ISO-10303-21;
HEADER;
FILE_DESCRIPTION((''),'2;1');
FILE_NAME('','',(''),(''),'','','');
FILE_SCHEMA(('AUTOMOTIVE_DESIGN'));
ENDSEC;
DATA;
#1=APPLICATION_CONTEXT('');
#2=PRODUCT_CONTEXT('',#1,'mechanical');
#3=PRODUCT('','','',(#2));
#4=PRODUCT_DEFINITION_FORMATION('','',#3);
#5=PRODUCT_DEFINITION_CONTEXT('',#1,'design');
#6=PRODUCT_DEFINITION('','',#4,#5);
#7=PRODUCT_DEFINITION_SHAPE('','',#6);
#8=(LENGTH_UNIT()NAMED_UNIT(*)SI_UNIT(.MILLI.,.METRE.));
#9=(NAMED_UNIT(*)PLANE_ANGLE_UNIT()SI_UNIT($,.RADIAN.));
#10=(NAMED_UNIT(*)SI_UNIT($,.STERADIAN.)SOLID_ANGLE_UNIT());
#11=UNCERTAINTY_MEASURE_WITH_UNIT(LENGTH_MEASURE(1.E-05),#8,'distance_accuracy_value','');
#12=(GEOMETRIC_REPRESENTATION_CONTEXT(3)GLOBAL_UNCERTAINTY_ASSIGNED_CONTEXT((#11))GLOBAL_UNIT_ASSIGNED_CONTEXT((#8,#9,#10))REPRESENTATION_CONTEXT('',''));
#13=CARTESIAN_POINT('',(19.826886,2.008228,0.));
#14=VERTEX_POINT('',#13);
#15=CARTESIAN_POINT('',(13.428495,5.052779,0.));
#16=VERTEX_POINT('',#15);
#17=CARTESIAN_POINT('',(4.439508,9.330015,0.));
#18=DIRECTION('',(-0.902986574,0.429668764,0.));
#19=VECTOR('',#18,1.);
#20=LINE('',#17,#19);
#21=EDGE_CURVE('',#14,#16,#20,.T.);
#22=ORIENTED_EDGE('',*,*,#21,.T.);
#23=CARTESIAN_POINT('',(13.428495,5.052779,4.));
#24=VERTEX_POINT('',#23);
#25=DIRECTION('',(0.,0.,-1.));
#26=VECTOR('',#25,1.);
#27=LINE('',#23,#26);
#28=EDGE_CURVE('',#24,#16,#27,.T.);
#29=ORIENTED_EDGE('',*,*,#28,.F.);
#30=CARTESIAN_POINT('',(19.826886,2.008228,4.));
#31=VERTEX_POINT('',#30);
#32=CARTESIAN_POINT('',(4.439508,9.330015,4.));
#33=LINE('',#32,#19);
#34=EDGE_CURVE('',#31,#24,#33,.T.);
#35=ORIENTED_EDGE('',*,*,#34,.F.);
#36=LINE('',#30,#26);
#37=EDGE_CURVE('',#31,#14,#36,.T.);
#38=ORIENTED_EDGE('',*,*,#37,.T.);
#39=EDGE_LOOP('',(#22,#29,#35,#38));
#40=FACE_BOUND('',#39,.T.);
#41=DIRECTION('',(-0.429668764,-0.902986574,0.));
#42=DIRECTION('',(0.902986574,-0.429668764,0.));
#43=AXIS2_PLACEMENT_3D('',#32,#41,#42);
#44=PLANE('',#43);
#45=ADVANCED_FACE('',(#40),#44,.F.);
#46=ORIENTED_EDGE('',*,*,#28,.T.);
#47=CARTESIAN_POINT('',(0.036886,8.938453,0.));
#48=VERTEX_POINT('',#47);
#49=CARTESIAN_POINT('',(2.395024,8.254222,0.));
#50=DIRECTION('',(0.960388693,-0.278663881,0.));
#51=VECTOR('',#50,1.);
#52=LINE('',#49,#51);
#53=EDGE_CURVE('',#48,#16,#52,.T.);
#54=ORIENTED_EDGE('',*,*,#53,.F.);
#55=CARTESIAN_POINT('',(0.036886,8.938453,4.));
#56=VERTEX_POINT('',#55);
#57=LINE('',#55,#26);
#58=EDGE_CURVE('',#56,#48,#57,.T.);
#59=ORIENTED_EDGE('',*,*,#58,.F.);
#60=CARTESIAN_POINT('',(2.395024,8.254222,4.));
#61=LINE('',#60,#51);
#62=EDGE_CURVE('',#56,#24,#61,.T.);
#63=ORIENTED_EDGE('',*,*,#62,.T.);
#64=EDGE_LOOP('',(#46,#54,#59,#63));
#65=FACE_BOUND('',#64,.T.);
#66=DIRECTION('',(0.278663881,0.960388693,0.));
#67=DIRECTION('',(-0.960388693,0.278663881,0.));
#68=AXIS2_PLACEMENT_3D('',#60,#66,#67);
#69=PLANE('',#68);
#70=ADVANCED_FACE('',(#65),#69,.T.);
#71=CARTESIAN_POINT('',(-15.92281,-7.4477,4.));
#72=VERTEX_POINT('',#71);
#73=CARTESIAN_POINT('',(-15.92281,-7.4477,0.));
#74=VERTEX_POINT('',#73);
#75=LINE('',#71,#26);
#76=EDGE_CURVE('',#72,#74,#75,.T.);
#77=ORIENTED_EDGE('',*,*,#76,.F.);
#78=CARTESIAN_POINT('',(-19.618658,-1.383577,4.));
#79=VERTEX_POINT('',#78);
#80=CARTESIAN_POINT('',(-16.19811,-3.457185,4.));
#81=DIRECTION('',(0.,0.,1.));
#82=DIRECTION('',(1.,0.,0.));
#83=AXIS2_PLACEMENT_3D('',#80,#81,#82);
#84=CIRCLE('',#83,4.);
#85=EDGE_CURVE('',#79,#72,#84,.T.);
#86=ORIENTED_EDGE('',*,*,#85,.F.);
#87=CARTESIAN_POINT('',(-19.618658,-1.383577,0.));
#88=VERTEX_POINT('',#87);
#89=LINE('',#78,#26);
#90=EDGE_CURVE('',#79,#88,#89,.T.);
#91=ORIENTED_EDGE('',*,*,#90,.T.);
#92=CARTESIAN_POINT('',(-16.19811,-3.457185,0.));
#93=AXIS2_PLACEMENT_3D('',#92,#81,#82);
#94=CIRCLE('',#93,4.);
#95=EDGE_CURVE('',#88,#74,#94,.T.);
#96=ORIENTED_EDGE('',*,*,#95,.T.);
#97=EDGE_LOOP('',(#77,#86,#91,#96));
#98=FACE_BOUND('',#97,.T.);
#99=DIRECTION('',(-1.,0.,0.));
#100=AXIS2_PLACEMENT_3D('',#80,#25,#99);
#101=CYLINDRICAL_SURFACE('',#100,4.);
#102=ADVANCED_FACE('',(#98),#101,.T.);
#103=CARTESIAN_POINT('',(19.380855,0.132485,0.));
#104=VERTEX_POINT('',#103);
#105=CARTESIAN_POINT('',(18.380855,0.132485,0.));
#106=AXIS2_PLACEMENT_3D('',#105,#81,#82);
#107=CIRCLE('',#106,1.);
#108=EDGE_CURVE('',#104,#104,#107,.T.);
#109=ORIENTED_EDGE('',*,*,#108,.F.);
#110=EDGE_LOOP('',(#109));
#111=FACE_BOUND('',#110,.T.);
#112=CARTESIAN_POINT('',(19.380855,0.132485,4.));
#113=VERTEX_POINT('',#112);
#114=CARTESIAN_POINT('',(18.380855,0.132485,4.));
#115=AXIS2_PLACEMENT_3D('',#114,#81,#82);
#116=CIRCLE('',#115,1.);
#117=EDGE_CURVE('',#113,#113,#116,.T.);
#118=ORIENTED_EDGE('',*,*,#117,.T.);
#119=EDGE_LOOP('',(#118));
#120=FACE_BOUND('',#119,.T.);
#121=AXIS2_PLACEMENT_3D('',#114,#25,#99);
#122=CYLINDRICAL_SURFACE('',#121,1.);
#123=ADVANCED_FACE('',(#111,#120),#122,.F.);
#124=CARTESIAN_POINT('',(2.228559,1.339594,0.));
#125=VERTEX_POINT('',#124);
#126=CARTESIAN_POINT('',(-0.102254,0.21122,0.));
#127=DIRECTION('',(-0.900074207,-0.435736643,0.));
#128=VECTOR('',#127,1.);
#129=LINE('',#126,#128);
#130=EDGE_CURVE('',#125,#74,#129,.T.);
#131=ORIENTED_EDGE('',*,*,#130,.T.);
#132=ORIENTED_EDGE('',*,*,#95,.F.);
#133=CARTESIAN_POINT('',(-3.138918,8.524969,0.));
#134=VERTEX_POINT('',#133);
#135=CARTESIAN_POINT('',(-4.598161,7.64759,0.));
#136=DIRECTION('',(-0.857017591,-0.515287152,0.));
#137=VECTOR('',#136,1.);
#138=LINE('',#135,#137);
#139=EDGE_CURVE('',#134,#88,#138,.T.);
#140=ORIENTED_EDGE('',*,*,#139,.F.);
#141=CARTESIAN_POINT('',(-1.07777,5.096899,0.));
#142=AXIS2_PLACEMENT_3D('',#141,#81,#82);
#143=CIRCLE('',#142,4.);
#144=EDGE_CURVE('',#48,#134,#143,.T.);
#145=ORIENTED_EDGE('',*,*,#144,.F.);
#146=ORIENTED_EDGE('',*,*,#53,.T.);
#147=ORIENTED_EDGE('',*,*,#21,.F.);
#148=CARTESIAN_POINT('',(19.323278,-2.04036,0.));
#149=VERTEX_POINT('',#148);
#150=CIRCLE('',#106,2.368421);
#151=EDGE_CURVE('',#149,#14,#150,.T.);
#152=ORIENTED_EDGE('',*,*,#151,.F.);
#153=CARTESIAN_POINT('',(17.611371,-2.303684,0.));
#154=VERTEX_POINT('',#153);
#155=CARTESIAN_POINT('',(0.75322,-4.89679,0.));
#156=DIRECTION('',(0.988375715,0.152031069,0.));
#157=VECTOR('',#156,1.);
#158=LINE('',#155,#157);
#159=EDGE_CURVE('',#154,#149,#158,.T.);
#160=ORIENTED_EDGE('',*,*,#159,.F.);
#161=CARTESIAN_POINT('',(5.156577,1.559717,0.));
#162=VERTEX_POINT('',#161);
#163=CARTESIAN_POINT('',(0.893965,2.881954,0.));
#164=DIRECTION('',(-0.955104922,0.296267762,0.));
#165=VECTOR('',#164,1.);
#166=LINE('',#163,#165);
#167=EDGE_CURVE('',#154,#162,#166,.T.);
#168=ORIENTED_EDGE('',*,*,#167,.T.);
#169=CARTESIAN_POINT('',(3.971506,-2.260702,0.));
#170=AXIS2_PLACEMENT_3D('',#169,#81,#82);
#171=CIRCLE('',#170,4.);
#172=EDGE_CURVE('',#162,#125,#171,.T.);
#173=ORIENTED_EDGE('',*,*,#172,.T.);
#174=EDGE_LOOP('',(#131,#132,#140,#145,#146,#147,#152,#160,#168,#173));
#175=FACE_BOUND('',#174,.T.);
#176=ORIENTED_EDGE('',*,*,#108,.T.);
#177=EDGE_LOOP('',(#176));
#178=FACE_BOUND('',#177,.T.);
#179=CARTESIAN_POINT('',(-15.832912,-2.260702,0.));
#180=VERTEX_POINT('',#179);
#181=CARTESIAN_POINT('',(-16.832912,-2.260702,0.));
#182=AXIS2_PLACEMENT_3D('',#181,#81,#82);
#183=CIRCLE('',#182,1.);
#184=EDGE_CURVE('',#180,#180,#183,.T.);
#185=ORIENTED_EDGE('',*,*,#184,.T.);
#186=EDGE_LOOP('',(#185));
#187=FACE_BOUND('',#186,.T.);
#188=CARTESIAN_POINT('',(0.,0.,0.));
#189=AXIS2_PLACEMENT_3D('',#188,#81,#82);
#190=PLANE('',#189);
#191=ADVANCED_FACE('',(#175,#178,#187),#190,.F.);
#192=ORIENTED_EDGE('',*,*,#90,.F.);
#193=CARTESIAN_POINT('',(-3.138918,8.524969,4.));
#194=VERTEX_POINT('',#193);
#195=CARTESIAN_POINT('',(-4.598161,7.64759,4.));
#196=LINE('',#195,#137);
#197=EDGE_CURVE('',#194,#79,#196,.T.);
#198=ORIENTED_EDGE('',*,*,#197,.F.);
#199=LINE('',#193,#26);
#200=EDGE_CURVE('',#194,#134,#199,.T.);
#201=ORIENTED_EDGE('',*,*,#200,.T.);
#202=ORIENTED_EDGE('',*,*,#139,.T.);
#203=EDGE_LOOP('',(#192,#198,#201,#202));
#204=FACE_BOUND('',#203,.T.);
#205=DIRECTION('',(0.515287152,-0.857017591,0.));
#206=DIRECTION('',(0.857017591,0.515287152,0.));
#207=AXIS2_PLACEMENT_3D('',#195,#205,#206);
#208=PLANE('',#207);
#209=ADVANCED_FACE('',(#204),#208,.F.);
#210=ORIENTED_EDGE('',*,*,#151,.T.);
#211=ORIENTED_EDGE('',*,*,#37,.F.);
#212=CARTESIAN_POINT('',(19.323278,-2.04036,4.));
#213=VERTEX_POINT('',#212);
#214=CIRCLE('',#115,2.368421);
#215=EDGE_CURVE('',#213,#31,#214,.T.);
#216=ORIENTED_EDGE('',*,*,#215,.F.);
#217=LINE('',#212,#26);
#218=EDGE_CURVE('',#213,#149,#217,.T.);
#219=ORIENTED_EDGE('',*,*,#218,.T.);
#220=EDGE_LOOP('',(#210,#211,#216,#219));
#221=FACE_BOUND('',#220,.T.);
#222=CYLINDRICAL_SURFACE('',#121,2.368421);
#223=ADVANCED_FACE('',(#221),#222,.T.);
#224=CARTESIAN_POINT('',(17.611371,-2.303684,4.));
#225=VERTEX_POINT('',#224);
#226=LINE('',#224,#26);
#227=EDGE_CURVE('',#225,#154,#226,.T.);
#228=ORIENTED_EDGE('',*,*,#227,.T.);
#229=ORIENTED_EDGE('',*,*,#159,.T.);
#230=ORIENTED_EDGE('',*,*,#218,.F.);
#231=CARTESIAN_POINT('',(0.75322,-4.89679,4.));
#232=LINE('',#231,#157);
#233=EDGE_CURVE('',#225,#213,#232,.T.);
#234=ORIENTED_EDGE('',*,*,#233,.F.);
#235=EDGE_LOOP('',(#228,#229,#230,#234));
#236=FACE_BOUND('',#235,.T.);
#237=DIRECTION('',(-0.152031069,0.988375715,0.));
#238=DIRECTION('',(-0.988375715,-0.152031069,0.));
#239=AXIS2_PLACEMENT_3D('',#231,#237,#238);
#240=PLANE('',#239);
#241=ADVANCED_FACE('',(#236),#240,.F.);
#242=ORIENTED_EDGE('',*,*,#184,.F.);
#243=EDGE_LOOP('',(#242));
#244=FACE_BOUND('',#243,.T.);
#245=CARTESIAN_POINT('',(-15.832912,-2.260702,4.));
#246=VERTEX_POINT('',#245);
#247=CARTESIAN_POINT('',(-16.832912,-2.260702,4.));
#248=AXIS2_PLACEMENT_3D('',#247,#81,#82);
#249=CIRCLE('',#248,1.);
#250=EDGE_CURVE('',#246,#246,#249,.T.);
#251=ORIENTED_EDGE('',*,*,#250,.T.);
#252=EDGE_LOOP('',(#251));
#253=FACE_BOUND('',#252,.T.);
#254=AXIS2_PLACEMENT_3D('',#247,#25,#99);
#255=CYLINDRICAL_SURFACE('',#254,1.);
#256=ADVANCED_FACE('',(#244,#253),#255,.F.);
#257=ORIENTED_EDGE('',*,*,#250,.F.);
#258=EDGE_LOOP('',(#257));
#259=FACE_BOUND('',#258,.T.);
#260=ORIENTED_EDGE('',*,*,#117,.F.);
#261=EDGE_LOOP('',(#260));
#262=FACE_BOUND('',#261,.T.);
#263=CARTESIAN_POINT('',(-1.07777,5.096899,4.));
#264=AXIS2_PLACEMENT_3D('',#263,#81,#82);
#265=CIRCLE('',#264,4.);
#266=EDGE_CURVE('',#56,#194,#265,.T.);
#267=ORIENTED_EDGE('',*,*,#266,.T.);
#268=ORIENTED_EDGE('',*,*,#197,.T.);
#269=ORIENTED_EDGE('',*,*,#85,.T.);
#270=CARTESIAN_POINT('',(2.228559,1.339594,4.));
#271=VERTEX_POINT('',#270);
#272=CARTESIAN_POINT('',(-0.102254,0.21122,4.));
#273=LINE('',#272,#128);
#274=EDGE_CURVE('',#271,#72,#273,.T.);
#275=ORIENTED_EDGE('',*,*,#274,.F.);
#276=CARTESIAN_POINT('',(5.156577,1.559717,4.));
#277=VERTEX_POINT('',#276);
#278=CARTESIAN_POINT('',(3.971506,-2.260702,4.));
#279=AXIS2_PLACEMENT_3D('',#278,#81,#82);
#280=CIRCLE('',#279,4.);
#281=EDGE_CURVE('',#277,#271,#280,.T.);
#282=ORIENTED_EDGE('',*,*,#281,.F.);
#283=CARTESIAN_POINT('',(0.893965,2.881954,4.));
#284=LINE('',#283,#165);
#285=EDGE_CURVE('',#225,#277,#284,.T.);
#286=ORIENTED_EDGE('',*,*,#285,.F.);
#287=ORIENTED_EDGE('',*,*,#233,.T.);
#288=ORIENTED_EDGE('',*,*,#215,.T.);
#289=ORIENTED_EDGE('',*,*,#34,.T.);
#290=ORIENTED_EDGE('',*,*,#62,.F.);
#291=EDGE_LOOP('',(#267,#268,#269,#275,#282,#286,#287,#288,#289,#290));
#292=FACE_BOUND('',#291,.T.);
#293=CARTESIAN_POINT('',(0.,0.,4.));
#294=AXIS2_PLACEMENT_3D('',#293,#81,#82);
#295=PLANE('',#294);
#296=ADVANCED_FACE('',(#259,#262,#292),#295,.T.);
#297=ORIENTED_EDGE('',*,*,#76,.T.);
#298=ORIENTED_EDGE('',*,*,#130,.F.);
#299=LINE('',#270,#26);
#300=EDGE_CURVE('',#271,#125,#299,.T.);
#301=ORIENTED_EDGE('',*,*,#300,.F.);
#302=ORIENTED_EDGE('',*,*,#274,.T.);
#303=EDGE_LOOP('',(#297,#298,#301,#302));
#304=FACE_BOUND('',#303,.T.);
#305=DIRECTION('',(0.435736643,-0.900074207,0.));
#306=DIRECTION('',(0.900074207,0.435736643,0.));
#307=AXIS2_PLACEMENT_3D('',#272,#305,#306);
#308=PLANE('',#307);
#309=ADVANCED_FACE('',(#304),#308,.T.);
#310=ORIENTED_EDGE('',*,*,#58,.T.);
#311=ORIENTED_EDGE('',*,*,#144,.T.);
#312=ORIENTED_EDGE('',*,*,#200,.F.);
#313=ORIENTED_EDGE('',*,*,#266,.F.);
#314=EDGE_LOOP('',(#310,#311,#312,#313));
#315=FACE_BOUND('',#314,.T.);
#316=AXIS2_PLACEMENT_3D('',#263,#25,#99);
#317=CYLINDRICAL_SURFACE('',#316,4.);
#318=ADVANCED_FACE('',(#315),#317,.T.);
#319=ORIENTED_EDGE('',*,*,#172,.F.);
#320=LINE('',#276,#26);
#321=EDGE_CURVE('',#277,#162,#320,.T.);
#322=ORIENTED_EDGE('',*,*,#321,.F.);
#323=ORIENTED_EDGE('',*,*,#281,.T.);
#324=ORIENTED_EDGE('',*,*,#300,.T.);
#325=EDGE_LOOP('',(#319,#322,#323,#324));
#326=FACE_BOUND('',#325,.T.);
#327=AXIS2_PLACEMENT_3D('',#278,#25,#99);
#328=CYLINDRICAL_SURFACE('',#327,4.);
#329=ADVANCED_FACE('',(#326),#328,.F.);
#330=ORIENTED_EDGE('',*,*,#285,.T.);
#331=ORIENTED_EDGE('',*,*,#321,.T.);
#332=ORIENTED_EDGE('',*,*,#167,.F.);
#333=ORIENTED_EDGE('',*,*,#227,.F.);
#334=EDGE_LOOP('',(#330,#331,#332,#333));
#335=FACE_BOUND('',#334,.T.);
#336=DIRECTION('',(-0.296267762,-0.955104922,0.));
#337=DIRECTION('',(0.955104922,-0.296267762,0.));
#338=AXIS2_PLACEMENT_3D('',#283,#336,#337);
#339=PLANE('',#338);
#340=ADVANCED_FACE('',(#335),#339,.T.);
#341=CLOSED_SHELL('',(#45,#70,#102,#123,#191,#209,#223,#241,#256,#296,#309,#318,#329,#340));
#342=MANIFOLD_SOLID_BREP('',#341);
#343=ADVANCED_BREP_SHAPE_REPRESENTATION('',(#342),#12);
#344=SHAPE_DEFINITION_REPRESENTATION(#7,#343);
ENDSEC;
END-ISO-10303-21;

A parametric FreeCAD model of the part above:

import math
import FreeCAD as App
import Part
import Sketcher
from FreeCAD import Vector
Q = App.Units.Quantity

doc = App.newDocument("Part")
body = doc.addObject("PartDesign::Body", "Body")

# Sketch on XY plane
sketch1 = body.newObject("Sketcher::SketchObject", "Sketch")
sketch1.AttachmentSupport = (doc.getObject("XY_Plane"), [""])
sketch1.MapMode = "FlatFace"
sketch1.addGeometry([
    Part.ArcOfCircle(Part.Circle(Vector(3.971506, -2.260702, 0), Vector(0, 0, 1), 4), math.radians(72.766426), math.radians(115.832177)),  # 0
    Part.LineSegment(Vector(5.156577, 1.559717, 0), Vector(17.611371, -2.303684, 0)),  # 1
    Part.LineSegment(Vector(17.611371, -2.303684, 0), Vector(19.323278, -2.04036, 0)),  # 2
    Part.ArcOfCircle(Part.Circle(Vector(18.380855, 0.132485, 0), Vector(0, 0, 1), 2.368421), math.radians(-66.552284), math.radians(52.370966)),  # 3
    Part.LineSegment(Vector(19.826886, 2.008228, 0), Vector(13.428495, 5.052779, 0)),  # 4
    Part.LineSegment(Vector(13.428495, 5.052779, 0), Vector(0.036886, 8.938453, 0)),  # 5
    Part.ArcOfCircle(Part.Circle(Vector(-1.07777, 5.096899, 0), Vector(0, 0, 1), 4), math.radians(73.819523), math.radians(121.016651)),  # 6
    Part.LineSegment(Vector(-3.138918, 8.524969, 0), Vector(-19.618658, -1.383577, 0)),  # 7
    Part.ArcOfCircle(Part.Circle(Vector(-16.19811, -3.457185, 0), Vector(0, 0, 1), 4), math.radians(148.774886), math.radians(273.946502)),  # 8
    Part.LineSegment(Vector(-15.92281, -7.4477, 0), Vector(2.228559, 1.339594, 0)),  # 9
    Part.Circle(Vector(-16.832912, -2.260702, 0), Vector(0, 0, 1), 1),  # 10
    Part.Circle(Vector(18.380855, 0.132485, 0), Vector(0, 0, 1), 1),  # 11
], False)
sketch1.addConstraint([
    Sketcher.Constraint("Coincident", 0, 1, 1, 1),
    Sketcher.Constraint("Coincident", 1, 2, 2, 1),
    Sketcher.Constraint("Coincident", 2, 2, 3, 1),
    Sketcher.Constraint("Coincident", 3, 2, 4, 1),
    Sketcher.Constraint("Coincident", 4, 2, 5, 1),
    Sketcher.Constraint("Coincident", 5, 2, 6, 1),
    Sketcher.Constraint("Coincident", 6, 2, 7, 1),
    Sketcher.Constraint("Coincident", 7, 2, 8, 1),
    Sketcher.Constraint("Coincident", 8, 2, 9, 1),
    Sketcher.Constraint("Coincident", 9, 2, 0, 2),
    Sketcher.Constraint("Coincident", 11, 3, 3, 3),
    Sketcher.Constraint("Diameter", 10, Q("2 mm")),
    Sketcher.Constraint("Diameter", 11, Q("2 mm")),
    Sketcher.Constraint("Radius", 0, Q("4 mm")),
    Sketcher.Constraint("Radius", 6, Q("4 mm")),
    Sketcher.Constraint("Radius", 8, Q("4 mm")),
    Sketcher.Constraint("Radius", 3, Q("2.368421 mm")),
    Sketcher.Constraint("DistanceY", -1, 1, 6, 3, Q("5.096899 mm")),
    Sketcher.Constraint("DistanceY", 8, 2, -1, 1, Q("7.4477 mm")),
    Sketcher.Constraint("DistanceY", 0, 3, 6, 3, Q("7.357601 mm")),
    Sketcher.Constraint("DistanceY", 10, 3, 6, 3, Q("7.357601 mm")),
    Sketcher.Constraint("DistanceY", 8, 3, 0, 1, Q("5.016902 mm")),
    Sketcher.Constraint("DistanceY", 1, 2, 0, 1, Q("3.863402 mm")),
    Sketcher.Constraint("DistanceX", 0, 1, 2, 2, Q("14.166701 mm")),
    Sketcher.Constraint("DistanceX", 8, 3, 8, 2, Q("0.2753 mm")),
    Sketcher.Constraint("Distance", 2, Q("1.732041 mm")),
    Sketcher.Constraint("Distance", 4, Q("7.08581 mm")),
    Sketcher.Constraint("DistanceX", 6, 3, -1, 1, Q("1.07777 mm")),
    Sketcher.Constraint("DistanceX", 8, 3, -1, 1, Q("16.19811 mm")),
    Sketcher.Constraint("DistanceX", -1, 1, 1, 2, Q("17.611371 mm")),
    Sketcher.Constraint("DistanceY", 2, 2, -1, 1, Q("2.04036 mm")),
    Sketcher.Constraint("DistanceY", -1, 1, 4, 2, Q("5.052779 mm")),
    Sketcher.Constraint("DistanceX", 6, 2, -1, 1, Q("3.138918 mm")),
    Sketcher.Constraint("DistanceX", 7, 2, -1, 1, Q("19.618658 mm")),
    Sketcher.Constraint("DistanceX", -1, 1, 9, 2, Q("2.228559 mm")),
    Sketcher.Constraint("DistanceX", 0, 3, 3, 3, Q("14.409349 mm")),
    Sketcher.Constraint("DistanceX", 3, 3, 3, 2, Q("1.446031 mm")),
    Sketcher.Constraint("DistanceX", 5, 2, 0, 1, Q("5.119691 mm")),
    Sketcher.Constraint("DistanceX", 10, 3, -1, 1, Q("16.832912 mm")),
])
pad1 = body.newObject("PartDesign::Pad", "Pad")
pad1.Profile = sketch1
pad1.Length = 4

doc.recompute()
